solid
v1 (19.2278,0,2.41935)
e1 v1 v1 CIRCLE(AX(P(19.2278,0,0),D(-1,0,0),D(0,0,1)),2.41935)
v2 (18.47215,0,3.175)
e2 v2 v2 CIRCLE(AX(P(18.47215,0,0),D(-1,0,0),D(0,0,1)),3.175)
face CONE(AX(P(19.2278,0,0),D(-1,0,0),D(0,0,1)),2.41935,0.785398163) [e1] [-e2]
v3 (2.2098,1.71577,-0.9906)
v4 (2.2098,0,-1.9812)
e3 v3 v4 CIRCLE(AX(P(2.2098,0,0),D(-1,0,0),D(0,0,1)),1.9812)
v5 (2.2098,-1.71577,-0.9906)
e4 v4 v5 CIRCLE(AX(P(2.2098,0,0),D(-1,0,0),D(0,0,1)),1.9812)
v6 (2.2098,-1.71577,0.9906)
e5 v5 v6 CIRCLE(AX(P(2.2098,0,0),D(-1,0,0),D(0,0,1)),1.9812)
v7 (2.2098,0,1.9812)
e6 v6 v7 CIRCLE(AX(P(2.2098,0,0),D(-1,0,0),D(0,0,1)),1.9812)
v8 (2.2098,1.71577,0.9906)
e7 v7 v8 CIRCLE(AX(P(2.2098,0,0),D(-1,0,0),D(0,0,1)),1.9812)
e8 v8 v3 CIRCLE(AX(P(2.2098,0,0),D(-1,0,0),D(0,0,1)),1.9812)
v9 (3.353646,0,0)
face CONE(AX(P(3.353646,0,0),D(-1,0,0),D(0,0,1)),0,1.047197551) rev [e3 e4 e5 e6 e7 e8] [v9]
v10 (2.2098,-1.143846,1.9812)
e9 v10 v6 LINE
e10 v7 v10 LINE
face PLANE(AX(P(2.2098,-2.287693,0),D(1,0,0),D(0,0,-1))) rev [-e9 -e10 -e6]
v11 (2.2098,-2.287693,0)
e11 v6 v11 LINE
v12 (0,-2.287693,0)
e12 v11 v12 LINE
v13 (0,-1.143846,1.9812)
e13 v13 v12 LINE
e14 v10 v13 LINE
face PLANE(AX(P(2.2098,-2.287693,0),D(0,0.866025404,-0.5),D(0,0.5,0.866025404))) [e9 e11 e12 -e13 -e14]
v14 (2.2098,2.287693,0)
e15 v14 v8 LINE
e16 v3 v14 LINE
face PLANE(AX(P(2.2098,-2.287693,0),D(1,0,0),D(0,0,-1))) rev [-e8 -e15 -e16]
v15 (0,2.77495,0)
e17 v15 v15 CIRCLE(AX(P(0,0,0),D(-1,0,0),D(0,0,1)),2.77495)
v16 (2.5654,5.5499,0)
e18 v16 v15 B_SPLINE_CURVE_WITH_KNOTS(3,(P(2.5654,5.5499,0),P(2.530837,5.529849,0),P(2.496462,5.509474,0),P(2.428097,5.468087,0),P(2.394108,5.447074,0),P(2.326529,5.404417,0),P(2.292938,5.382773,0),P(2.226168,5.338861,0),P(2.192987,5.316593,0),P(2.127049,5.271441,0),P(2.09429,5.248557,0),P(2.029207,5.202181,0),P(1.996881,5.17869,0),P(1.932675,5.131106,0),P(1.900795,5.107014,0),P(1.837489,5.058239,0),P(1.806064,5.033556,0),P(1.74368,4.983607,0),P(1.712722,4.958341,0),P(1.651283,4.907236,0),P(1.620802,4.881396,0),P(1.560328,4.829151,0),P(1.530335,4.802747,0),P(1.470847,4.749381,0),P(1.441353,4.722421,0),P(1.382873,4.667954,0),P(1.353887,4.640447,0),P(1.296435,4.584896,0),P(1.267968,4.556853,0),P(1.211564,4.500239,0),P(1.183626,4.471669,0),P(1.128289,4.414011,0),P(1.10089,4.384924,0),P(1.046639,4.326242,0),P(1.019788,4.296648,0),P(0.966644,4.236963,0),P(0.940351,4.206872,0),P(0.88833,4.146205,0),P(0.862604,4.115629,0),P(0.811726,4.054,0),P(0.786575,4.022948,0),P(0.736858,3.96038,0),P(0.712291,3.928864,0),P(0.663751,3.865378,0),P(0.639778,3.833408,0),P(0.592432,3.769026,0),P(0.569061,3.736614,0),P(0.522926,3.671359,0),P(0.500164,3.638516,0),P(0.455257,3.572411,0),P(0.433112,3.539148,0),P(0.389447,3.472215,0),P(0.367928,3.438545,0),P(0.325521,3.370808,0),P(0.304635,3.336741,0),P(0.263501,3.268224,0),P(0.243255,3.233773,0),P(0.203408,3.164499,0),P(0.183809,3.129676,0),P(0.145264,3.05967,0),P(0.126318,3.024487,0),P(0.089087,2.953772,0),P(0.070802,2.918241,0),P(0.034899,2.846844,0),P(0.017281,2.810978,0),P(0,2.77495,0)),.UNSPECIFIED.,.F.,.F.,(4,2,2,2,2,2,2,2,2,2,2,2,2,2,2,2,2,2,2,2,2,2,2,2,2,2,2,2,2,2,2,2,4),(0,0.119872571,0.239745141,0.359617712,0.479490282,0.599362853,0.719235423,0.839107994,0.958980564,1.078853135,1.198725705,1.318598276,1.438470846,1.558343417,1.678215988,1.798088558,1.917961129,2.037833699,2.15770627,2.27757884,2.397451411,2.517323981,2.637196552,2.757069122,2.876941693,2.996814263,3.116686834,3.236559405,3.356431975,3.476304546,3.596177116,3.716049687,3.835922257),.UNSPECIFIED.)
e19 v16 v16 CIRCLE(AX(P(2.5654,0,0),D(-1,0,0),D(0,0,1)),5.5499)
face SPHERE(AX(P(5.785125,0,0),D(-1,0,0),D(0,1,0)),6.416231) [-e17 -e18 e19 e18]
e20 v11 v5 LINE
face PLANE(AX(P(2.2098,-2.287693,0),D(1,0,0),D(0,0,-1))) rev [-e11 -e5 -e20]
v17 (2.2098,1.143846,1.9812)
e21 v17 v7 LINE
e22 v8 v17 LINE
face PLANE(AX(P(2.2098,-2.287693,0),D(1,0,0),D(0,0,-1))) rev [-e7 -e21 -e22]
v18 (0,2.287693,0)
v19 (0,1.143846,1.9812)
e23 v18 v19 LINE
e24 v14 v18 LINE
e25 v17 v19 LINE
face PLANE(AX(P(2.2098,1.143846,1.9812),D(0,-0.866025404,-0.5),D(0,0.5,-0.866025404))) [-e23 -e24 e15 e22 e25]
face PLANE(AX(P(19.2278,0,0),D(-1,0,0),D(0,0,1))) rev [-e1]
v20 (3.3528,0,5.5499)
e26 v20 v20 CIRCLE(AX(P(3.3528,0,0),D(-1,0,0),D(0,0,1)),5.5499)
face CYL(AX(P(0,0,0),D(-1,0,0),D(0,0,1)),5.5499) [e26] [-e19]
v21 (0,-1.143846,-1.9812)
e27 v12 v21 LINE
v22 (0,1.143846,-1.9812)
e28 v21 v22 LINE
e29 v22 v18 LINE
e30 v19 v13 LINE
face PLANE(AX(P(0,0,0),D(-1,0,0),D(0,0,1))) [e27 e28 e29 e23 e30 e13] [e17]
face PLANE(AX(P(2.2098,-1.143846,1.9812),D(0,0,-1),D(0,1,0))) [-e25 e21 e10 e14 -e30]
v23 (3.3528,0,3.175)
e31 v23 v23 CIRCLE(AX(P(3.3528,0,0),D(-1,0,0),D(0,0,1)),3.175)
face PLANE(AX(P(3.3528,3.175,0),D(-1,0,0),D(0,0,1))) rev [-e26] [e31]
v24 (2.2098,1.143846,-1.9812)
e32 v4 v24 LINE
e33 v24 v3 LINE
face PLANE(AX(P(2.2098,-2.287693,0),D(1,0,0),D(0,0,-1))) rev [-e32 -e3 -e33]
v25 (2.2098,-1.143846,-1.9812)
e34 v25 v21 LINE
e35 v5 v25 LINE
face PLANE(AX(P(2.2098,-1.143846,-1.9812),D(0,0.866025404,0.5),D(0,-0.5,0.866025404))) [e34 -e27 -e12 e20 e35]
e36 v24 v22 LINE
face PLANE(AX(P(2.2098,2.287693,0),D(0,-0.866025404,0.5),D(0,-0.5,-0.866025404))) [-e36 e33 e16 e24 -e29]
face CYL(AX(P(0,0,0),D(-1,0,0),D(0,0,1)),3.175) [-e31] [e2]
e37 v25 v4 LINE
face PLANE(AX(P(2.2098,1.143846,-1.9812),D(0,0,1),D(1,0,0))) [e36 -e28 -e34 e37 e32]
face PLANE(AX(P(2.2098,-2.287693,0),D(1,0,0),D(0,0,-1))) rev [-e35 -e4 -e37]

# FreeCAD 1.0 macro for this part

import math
import FreeCAD as App
import Part
import Sketcher
from FreeCAD import Vector
Q = App.Units.Quantity


def add_polygon(sketch, points):
    """Adds a closed chain of lines whose ends are joined by coincident constraints."""
    first, n = sketch.GeometryCount, len(points)
    for a, b in zip(points, points[1:] + points[:1]):
        sketch.addGeometry(Part.LineSegment(App.Vector(*a, 0), App.Vector(*b, 0)), False)
    for i in range(n):
        sketch.addConstraint(Sketcher.Constraint("Coincident", first + i, 2, first + (i + 1) % n, 1))

doc = App.newDocument("Part")
body = doc.addObject("PartDesign::Body", "Body")

# Sketch on XY plane
sketch1 = doc.addObject("Sketcher::SketchObject", "Sketch")
body.addObject(sketch1)
sketch1.AttachmentSupport = (doc.XY_Plane, [""])
sketch1.MapMode = "FlatFace"
sketch1.addGeometry([
    Part.LineSegment(Vector(19.2278, 0, 0), Vector(19.2278, 2.41935, 0)),  # 0
    Part.LineSegment(Vector(19.2278, 2.41935, 0), Vector(18.47215, 3.175, 0)),  # 1
    Part.LineSegment(Vector(18.47215, 3.175, 0), Vector(3.3528, 3.175, 0)),  # 2
    Part.LineSegment(Vector(3.3528, 3.175, 0), Vector(3.3528, 5.5499, 0)),  # 3
    Part.LineSegment(Vector(3.3528, 5.5499, 0), Vector(2.5654, 5.5499, 0)),  # 4
    Part.ArcOfCircle(Part.Circle(Vector(5.785125, 0, 0), Vector(0, 0, 1), 6.416231), math.radians(120.119782), math.radians(154.374371)),  # 5
    Part.LineSegment(Vector(0, 2.77495, 0), Vector(0, 0, 0)),  # 6
    Part.LineSegment(Vector(0, 0, 0), Vector(19.2278, 0, 0)),  # 7
], False)
sketch1.addConstraint([
    Sketcher.Constraint("Coincident", 0, 2, 1, 1),
    Sketcher.Constraint("Coincident", 1, 2, 2, 1),
    Sketcher.Constraint("Coincident", 2, 2, 3, 1),
    Sketcher.Constraint("Coincident", 3, 2, 4, 1),
    Sketcher.Constraint("Coincident", 4, 2, 5, 1),
    Sketcher.Constraint("Coincident", 5, 2, 6, 1),
    Sketcher.Constraint("Coincident", 6, 2, 7, 1),
    Sketcher.Constraint("Coincident", 7, 2, 0, 1),
    Sketcher.Constraint("Vertical", 0),
    Sketcher.Constraint("Horizontal", 2),
    Sketcher.Constraint("Vertical", 3),
    Sketcher.Constraint("Horizontal", 4),
    Sketcher.Constraint("Vertical", 6),
    Sketcher.Constraint("Horizontal", 7),
    Sketcher.Constraint("Coincident", 6, 2, -1, 1),
    Sketcher.Constraint("PointOnObject", 5, 3, -1),
    Sketcher.Constraint("Angle", 1, Q("135 deg")),
    Sketcher.Constraint("DistanceX", 4, 2, 4, 1, Q("0.031 in")),
    Sketcher.Constraint("DistanceX", 7, 1, 7, 2, Q("0.757 in")),
    Sketcher.Constraint("DistanceY", 3, 1, 3, 2, Q("0.0935 in")),
    Sketcher.Constraint("DistanceY", -1, 1, 1, 2, Q("0.125 in")),
    Sketcher.Constraint("DistanceX", -1, 1, 2, 2, Q("0.132 in")),
    Sketcher.Constraint("Radius", 5, Q("6.416231 mm")),
    Sketcher.Constraint("DistanceX", 2, 2, 2, 1, Q("15.11935 mm")),
])
revolution = doc.addObject("PartDesign::Revolution", "Revolution")
body.addObject(revolution)
revolution.Profile = sketch1
revolution.ReferenceAxis = (sketch1, ["H_Axis"])
revolution.Angle = 360

# Sketch on XY plane
sketch2 = doc.addObject("Sketcher::SketchObject", "Sketch001")
body.addObject(sketch2)
sketch2.AttachmentSupport = (doc.XY_Plane, [""])
sketch2.MapMode = "FlatFace"
add_polygon(sketch2, [(2.2098, 1.9812), (0, 1.9812), (0, 0), (3.353646, 0)])  # lines 0-3
sketch2.addConstraint([
    Sketcher.Constraint("Horizontal", 0),
    Sketcher.Constraint("Vertical", 1),
    Sketcher.Constraint("Horizontal", 2),
    Sketcher.Constraint("Coincident", 1, 2, -1, 1),
    Sketcher.Constraint("Angle", 3, Q("120 deg")),
    Sketcher.Constraint("DistanceX", 0, 2, 0, 1, Q("0.087 in")),
    Sketcher.Constraint("DistanceY", 1, 2, 1, 1, Q("0.078 in")),
])
groove = doc.addObject("PartDesign::Groove", "Groove")
body.addObject(groove)
groove.Profile = sketch2
groove.ReferenceAxis = (sketch2, ["H_Axis"])
groove.Angle = 360

# Sketch on YZ plane
sketch3 = doc.addObject("Sketcher::SketchObject", "Sketch002")
body.addObject(sketch3)
sketch3.AttachmentSupport = (doc.YZ_Plane, [""])
sketch3.MapMode = "FlatFace"
add_polygon(sketch3, [(1.143846, 1.9812), (-1.143846, 1.9812), (-2.287693, 0), (-1.143846, -1.9812), (1.143846, -1.9812), (2.287693, 0)])  # lines 0-5
sketch3.addConstraint([
    Sketcher.Constraint("Horizontal", 0),
    Sketcher.Constraint("Horizontal", 3),
    Sketcher.Constraint("Symmetric", 0, 2, 3, 2, -1, 1),
    Sketcher.Constraint("Symmetric", 1, 2, 4, 2, -1, 1),
    Sketcher.Constraint("PointOnObject", 1, 2, -1),
    Sketcher.Constraint("Parallel", 2, 5),
    Sketcher.Constraint("Vertical", 0, 2, 2, 2),
    Sketcher.Constraint("Angle", 1, Q("-120 deg")),
    Sketcher.Constraint("DistanceY", -1, 1, 0, 2, Q("0.078 in")),
    Sketcher.Constraint("DistanceX", 1, 2, 3, 2, Q("0.1351 in")),
])
pocket1 = doc.addObject("PartDesign::Pocket", "Pocket")
body.addObject(pocket1)
pocket1.Profile = sketch3
pocket1.Length = Q("0.087 in")
pocket1.Reversed = True

doc.recompute()
